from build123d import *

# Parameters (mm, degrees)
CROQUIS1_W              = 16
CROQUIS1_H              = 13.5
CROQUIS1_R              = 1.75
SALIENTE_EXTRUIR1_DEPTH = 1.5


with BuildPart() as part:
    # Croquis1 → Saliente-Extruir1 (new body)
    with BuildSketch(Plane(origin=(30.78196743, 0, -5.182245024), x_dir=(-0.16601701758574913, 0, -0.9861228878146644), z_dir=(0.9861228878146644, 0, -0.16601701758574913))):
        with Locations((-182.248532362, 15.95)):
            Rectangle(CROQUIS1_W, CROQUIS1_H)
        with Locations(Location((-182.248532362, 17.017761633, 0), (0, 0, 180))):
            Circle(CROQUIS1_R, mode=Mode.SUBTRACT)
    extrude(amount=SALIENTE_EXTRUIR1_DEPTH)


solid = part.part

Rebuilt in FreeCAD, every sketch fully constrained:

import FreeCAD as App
import Part
import Sketcher
Q = App.Units.Quantity

doc = App.newDocument("Part")
body = doc.addObject("PartDesign::Body", "Body")

# Sketch on an angled plane
sketch1 = body.newObject("Sketcher::SketchObject", "Sketch")
sketch1.Placement = App.Placement(App.Vector(30.781967, 0, -5.182245), App.Rotation(App.Vector(-0.166017018, 0, -0.986122888), App.Vector(0, 1.000000001, 0), App.Vector(0.986122888, 0, -0.166017018), "ZXY"))
sketch1.addGeometry([
    Part.LineSegment(App.Vector(-190.2, 22.7, 0), App.Vector(-190.2, 9.2, 0)),  # 0
    Part.LineSegment(App.Vector(-190.2, 9.2, 0), App.Vector(-174.2, 9.2, 0)),  # 1
    Part.LineSegment(App.Vector(-174.2, 9.2, 0), App.Vector(-174.2, 22.7, 0)),  # 2
    Part.LineSegment(App.Vector(-174.2, 22.7, 0), App.Vector(-190.2, 22.7, 0)),  # 3
    Part.Circle(App.Vector(-182.2, 17, 0), App.Vector(0, 0, 1), 1.8),  # 4
], False)
sketch1.addConstraint([
    Sketcher.Constraint("Coincident", 0, 2, 1, 1),
    Sketcher.Constraint("Coincident", 1, 2, 2, 1),
    Sketcher.Constraint("Coincident", 2, 2, 3, 1),
    Sketcher.Constraint("Coincident", 3, 2, 0, 1),
    Sketcher.Constraint("Vertical", 0),
    Sketcher.Constraint("Horizontal", 1),
    Sketcher.Constraint("Vertical", 2),
    Sketcher.Constraint("Horizontal", 3),
    Sketcher.Constraint("Diameter", 4, Q("3.5 mm")),
    Sketcher.Constraint("DistanceX", 1, 1, 1, 2, Q("16 mm")),
    Sketcher.Constraint("DistanceY", 0, 2, 0, 1, Q("13.5 mm")),
    Sketcher.Constraint("DistanceX", 0, 2, 4, 3, Q("8 mm")),
    Sketcher.Constraint("DistanceY", -1, 1, 0, 2, Q("9.2 mm")),
    Sketcher.Constraint("DistanceY", -1, 1, 4, 3, Q("17.017762 mm")),
    Sketcher.Constraint("DistanceX", 4, 3, -1, 1, Q("182.248532 mm")),
])
pad1 = body.newObject("PartDesign::Pad", "Pad")
pad1.Profile = sketch1
pad1.Length = 1.5

doc.recompute()
